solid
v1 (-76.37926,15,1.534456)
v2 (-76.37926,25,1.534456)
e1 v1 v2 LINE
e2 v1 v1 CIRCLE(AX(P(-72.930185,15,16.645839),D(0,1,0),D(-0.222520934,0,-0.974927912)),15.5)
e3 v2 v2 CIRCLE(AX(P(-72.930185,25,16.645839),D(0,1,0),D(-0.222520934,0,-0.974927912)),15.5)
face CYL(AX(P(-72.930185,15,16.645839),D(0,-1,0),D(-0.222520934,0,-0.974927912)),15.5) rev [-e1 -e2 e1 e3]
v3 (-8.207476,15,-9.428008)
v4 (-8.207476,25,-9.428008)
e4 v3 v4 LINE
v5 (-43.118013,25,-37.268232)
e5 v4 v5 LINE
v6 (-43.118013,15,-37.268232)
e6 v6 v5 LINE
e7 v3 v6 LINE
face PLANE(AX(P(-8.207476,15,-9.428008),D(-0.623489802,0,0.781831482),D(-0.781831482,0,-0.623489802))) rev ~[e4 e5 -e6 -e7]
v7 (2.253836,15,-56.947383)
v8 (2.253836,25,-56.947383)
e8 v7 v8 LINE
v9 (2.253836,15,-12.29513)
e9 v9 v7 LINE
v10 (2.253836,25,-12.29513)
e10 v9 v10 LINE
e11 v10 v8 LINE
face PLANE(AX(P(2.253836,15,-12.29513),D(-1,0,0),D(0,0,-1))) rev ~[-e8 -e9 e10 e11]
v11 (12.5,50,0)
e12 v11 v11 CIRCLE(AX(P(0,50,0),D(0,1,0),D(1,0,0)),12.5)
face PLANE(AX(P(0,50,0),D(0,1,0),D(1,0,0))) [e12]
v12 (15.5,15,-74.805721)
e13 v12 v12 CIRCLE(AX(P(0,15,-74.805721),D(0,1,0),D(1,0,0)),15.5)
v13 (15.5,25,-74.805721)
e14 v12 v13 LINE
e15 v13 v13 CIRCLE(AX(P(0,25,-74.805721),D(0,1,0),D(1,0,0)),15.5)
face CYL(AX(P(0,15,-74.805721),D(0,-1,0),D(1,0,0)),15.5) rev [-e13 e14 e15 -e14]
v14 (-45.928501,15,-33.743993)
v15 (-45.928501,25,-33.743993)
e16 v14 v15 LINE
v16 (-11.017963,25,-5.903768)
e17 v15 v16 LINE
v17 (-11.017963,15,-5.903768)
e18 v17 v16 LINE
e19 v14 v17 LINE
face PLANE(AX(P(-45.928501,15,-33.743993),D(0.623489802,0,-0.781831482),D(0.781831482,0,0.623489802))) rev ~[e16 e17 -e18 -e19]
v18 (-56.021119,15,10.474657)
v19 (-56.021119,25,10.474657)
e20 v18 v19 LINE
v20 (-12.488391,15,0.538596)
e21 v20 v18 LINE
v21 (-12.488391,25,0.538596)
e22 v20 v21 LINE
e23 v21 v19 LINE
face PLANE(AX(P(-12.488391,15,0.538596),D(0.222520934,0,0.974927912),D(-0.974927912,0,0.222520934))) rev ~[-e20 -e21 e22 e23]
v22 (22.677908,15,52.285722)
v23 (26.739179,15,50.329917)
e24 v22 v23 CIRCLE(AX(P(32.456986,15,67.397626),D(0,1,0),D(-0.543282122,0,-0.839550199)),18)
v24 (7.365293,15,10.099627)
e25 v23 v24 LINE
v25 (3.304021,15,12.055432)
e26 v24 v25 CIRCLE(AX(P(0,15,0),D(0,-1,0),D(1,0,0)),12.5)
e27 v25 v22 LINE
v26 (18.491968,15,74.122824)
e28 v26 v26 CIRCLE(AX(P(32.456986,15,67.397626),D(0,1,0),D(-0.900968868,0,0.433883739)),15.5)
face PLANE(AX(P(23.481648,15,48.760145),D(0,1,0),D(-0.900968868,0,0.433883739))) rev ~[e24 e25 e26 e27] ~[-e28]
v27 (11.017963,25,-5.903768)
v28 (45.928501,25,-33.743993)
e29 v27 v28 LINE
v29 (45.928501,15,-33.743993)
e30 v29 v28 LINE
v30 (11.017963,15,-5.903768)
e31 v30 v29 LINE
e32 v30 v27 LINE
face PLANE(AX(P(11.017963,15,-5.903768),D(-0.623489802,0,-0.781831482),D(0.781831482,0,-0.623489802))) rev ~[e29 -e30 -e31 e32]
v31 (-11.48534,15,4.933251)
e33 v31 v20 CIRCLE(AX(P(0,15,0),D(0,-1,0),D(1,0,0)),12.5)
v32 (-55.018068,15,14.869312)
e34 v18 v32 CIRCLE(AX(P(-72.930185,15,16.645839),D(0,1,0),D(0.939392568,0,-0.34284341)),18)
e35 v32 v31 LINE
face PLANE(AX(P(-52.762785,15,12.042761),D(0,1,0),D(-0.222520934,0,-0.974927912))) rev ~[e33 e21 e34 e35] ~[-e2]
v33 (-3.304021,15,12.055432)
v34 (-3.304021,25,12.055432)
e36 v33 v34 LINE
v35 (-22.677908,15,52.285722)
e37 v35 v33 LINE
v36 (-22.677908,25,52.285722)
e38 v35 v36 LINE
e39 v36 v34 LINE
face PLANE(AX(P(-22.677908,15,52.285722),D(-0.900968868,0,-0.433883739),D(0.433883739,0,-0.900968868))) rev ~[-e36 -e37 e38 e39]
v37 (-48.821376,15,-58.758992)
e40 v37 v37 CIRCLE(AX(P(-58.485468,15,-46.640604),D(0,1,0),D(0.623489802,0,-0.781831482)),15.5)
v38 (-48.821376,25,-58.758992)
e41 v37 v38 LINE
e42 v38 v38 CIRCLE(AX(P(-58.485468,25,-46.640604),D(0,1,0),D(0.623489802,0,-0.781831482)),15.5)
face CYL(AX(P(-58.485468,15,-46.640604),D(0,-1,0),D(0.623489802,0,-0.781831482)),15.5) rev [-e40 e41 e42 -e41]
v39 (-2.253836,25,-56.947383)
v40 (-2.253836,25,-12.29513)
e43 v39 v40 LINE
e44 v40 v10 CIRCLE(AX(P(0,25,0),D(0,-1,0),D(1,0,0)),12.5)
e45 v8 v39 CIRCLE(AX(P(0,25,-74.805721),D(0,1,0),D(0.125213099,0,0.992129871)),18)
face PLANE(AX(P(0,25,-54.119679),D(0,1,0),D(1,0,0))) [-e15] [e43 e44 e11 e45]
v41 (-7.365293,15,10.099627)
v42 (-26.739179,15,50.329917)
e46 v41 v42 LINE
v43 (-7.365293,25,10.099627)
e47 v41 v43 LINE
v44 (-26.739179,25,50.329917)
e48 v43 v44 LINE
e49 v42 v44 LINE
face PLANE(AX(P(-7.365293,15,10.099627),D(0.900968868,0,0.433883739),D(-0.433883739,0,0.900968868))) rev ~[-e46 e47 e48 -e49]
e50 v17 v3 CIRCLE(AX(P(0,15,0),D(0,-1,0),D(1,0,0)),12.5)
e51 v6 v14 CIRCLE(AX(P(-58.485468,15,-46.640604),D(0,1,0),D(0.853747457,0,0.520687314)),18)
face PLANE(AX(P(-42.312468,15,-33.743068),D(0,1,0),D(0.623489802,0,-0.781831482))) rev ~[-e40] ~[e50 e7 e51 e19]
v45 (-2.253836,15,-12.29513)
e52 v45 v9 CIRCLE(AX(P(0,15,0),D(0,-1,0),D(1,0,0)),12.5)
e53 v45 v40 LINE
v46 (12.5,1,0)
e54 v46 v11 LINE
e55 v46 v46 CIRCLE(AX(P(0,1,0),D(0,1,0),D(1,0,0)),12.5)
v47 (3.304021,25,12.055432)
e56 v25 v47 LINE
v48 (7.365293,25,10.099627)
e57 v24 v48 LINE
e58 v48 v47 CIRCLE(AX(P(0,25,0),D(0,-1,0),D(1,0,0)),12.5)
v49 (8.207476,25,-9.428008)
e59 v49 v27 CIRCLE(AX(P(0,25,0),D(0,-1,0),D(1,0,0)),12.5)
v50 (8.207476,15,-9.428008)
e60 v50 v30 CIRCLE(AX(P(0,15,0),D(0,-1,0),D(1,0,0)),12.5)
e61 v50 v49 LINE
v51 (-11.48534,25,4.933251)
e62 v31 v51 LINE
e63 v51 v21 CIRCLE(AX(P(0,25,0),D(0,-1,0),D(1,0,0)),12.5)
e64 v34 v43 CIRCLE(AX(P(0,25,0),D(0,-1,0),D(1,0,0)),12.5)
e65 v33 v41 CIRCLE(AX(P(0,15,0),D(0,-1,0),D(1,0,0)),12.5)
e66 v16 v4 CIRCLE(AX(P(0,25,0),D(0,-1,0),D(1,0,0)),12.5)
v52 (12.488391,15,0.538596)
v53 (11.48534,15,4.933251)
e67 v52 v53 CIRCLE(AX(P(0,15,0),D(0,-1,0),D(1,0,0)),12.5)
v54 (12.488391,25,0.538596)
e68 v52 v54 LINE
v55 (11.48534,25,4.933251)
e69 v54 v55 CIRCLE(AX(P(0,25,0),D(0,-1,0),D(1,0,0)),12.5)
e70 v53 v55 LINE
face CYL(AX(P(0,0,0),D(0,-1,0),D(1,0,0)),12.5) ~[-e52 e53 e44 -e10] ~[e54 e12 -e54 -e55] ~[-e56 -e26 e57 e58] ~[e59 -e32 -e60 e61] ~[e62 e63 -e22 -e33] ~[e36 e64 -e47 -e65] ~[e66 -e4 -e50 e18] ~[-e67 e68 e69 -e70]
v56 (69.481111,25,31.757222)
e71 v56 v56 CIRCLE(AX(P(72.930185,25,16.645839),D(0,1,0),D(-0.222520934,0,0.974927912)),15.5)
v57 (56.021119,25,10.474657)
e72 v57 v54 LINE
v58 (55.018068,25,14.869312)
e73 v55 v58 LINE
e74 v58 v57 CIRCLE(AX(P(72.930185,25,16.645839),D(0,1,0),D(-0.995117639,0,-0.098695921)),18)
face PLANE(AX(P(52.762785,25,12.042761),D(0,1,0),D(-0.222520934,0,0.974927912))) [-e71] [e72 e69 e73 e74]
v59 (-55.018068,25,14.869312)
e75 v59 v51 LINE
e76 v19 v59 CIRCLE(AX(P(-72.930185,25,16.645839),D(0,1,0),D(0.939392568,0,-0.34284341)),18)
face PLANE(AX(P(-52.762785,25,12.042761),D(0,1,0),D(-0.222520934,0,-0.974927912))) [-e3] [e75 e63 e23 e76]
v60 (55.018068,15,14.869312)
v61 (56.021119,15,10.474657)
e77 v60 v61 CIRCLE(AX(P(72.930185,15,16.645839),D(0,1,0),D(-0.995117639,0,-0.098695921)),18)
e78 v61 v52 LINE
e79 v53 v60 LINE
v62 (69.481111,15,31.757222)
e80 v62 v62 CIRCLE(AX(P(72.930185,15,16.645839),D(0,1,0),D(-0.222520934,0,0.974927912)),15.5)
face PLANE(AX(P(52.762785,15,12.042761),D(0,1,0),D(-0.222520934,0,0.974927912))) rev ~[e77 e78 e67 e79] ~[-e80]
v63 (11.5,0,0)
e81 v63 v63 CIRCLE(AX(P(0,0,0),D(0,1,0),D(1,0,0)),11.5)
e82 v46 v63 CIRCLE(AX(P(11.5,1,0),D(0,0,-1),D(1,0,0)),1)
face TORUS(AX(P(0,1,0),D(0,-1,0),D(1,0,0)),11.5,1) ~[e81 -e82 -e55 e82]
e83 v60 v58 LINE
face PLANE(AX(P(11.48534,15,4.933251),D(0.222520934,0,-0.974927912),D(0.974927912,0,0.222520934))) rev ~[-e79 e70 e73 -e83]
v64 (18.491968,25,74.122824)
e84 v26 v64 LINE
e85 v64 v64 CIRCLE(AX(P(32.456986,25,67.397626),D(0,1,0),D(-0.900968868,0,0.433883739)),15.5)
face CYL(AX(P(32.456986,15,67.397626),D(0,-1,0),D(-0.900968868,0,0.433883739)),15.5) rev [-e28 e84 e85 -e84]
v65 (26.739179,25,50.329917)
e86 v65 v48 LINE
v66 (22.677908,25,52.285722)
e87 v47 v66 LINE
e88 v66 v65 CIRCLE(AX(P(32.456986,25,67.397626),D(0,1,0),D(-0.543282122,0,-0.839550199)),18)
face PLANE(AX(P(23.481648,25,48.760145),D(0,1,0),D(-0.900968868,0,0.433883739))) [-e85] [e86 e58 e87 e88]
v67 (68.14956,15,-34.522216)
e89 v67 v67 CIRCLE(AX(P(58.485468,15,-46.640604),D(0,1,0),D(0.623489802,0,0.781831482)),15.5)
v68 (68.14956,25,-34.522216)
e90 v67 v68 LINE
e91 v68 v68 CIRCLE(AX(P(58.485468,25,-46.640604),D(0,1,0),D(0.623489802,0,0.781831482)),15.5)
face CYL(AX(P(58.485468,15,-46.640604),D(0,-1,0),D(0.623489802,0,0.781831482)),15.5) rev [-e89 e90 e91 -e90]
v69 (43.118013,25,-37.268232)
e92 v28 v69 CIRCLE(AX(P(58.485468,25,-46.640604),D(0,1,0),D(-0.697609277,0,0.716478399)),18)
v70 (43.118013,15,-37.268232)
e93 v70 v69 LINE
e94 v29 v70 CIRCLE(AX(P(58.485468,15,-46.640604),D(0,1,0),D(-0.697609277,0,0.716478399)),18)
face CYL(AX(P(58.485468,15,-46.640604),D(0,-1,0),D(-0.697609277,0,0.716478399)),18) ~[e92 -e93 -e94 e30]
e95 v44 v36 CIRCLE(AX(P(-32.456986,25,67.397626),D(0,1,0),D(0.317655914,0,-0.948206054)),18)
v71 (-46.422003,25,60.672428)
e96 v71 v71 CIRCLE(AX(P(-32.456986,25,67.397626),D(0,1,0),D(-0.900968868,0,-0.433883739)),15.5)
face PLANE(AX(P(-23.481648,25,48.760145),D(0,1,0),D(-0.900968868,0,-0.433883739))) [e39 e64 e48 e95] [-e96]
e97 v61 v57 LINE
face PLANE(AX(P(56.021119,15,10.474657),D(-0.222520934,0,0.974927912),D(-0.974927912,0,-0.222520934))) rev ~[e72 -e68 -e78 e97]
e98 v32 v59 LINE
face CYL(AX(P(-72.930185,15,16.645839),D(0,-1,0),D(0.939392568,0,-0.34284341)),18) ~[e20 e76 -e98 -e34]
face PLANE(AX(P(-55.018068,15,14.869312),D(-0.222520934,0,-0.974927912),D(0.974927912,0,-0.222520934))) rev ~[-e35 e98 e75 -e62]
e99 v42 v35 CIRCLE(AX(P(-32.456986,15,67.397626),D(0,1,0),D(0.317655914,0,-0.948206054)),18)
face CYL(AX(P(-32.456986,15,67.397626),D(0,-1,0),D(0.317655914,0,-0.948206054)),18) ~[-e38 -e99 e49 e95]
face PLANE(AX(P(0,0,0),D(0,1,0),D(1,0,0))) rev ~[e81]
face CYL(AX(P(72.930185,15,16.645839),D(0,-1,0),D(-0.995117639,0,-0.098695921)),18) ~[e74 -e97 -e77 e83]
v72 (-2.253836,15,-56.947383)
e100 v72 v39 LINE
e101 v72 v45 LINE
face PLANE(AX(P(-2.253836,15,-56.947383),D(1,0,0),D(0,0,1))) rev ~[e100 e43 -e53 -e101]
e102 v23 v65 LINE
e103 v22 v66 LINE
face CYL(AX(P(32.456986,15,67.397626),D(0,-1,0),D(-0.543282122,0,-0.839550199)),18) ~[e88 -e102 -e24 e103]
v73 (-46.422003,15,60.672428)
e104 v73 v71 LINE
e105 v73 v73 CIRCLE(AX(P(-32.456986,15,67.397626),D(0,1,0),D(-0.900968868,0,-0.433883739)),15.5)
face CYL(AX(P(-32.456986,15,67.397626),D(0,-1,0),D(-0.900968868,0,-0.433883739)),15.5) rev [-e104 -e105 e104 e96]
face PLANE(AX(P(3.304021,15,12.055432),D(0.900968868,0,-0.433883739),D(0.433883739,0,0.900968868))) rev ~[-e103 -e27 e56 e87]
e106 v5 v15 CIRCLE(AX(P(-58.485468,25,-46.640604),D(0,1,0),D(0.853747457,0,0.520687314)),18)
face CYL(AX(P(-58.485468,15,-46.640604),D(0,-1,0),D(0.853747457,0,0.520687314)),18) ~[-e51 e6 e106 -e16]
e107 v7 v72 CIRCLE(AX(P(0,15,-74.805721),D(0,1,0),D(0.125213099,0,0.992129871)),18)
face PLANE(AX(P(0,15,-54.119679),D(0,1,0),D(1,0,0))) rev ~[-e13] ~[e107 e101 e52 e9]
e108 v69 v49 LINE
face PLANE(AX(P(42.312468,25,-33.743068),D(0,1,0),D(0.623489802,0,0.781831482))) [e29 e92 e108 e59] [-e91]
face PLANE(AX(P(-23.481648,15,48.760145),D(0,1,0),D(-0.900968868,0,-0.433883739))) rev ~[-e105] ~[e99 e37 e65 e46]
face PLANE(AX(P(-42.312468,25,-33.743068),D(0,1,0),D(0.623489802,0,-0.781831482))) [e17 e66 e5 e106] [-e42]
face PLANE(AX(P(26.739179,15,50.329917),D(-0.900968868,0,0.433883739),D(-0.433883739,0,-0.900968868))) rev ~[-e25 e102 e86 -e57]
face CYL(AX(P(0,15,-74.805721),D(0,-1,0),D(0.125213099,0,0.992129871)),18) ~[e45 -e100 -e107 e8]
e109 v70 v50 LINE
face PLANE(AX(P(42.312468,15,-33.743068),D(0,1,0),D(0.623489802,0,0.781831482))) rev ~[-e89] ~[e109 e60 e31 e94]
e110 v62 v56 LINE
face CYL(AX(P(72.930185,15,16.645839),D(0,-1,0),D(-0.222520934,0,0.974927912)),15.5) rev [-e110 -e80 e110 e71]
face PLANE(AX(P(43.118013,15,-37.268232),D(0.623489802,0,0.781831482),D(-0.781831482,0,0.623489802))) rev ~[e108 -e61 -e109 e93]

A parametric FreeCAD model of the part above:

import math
import FreeCAD as App
import Part
import Sketcher


def edges_at(feature, points):
    """Names of the edges that pass closest to the given points."""
    edges = feature.Shape.Edges
    near = lambda p: min(range(len(edges)), key=lambda i: edges[i].distToShape(Part.Vertex(*p))[0])
    return sorted({f"Edge{near(p) + 1}" for p in points})

doc = App.newDocument("Part")
params = doc.addObject("Spreadsheet::Sheet", "Params")
for row, (alias, value) in enumerate([
    ("sketch1_diameter", "25 mm"),
    ("pad1_length", "50 mm"),
    ("sketch2_diameter", "31 mm"),
    ("sketch2_radius", "18 mm"),
    ("pad2_length", "10 mm"),
    ("fillet_radius", "1 mm"),
], start=1):
    params.set(f"A{row}", alias)
    params.set(f"B{row}", "=" + value)
    params.setAlias(f"B{row}", alias)

body = doc.addObject("PartDesign::Body", "Body")

sketch1 = body.newObject("Sketcher::SketchObject", "Sketch")
sketch1.AttachmentSupport = (doc.getObject("XZ_Plane"), [""])
sketch1.MapMode = "FlatFace"
sketch1.addGeometry(Part.Circle(App.Vector(0, 0, 0), App.Vector(0, 0, 1), 12.5), False)
sketch1.addConstraint([
    Sketcher.Constraint("Coincident", 0, 3, -1, 1),
    Sketcher.Constraint("Diameter", 0, 25.0),
])
sketch1.setExpression("Constraints[1]", "Params.sketch1_diameter")
pad1 = body.newObject("PartDesign::Pad", "Pad")
pad1.Profile = sketch1
pad1.setExpression("Length", "Params.pad1_length")
pad1.Reversed = True

sketch2 = body.newObject("Sketcher::SketchObject", "Sketch001")
sketch2.AttachmentSupport = (doc.getObject("XZ_Plane"), [""])
sketch2.MapMode = "FlatFace"
sketch2.AttachmentOffset = App.Placement(App.Vector(0, 0, -15), App.Rotation())
sketch2.addGeometry([
    Part.LineSegment(App.Vector(-2.253836, -56.947383, 0), App.Vector(-2.253836, -12.29513, 0)),
    Part.LineSegment(App.Vector(-2.253836, -12.29513, 0), App.Vector(2.253836, -12.29513, 0)),
    Part.LineSegment(App.Vector(2.253836, -12.29513, 0), App.Vector(2.253836, -56.947383, 0)),
    Part.ArcOfCircle(Part.Circle(App.Vector(0, -74.805721, 0), App.Vector(0, 0, 1), 18), math.radians(97.193062), math.radians(442.806938)),
    Part.Circle(App.Vector(0, -74.805721, 0), App.Vector(0, 0, 1), 15.5),
], False)
sketch2.addConstraint([
    Sketcher.Constraint("Coincident", 0, 2, 1, 1),
    Sketcher.Constraint("Coincident", 1, 2, 2, 1),
    Sketcher.Constraint("Coincident", 2, 2, 3, 2),
    Sketcher.Constraint("Coincident", 3, 1, 0, 1),
    Sketcher.Constraint("Vertical", 0),
    Sketcher.Constraint("Horizontal", 1),
    Sketcher.Constraint("Vertical", 2),
    Sketcher.Constraint("Coincident", 4, 3, 3, 3),
    Sketcher.Constraint("Symmetric", 2, 2, 3, 1, -2),
    Sketcher.Constraint("Diameter", 4, 31.0),
    Sketcher.Constraint("Radius", 3, 18.0),
    Sketcher.Constraint("DistanceX", 1, 1, 1, 2, 4.507672),
    Sketcher.Constraint("DistanceY", 0, 1, 0, 2, 44.652253),
    Sketcher.Constraint("DistanceY", 3, 3, -1, 1, 74.805721),
])
sketch2.setExpression("Constraints[9]", "Params.sketch2_diameter")
sketch2.setExpression("Constraints[10]", "Params.sketch2_radius")
pad2 = body.newObject("PartDesign::Pad", "Pad001")
pad2.Profile = sketch2
pad2.setExpression("Length", "Params.pad2_length")
pad2.Reversed = True
doc.recompute()

polarpattern = body.newObject("PartDesign::PolarPattern", "PolarPattern")
polarpattern.Originals = [pad2]
polarpattern.Axis = (doc.getObject("Y_Axis"), [""])
polarpattern.Angle = 360
polarpattern.Occurrences = 7
body.Tip = polarpattern
doc.recompute()

fillet = body.newObject("PartDesign::Fillet", "Fillet")
fillet.Base = (polarpattern, edges_at(polarpattern, [(-12.5, 0, 0)]))
fillet.setExpression("Radius", "Params.fillet_radius")

doc.recompute()
